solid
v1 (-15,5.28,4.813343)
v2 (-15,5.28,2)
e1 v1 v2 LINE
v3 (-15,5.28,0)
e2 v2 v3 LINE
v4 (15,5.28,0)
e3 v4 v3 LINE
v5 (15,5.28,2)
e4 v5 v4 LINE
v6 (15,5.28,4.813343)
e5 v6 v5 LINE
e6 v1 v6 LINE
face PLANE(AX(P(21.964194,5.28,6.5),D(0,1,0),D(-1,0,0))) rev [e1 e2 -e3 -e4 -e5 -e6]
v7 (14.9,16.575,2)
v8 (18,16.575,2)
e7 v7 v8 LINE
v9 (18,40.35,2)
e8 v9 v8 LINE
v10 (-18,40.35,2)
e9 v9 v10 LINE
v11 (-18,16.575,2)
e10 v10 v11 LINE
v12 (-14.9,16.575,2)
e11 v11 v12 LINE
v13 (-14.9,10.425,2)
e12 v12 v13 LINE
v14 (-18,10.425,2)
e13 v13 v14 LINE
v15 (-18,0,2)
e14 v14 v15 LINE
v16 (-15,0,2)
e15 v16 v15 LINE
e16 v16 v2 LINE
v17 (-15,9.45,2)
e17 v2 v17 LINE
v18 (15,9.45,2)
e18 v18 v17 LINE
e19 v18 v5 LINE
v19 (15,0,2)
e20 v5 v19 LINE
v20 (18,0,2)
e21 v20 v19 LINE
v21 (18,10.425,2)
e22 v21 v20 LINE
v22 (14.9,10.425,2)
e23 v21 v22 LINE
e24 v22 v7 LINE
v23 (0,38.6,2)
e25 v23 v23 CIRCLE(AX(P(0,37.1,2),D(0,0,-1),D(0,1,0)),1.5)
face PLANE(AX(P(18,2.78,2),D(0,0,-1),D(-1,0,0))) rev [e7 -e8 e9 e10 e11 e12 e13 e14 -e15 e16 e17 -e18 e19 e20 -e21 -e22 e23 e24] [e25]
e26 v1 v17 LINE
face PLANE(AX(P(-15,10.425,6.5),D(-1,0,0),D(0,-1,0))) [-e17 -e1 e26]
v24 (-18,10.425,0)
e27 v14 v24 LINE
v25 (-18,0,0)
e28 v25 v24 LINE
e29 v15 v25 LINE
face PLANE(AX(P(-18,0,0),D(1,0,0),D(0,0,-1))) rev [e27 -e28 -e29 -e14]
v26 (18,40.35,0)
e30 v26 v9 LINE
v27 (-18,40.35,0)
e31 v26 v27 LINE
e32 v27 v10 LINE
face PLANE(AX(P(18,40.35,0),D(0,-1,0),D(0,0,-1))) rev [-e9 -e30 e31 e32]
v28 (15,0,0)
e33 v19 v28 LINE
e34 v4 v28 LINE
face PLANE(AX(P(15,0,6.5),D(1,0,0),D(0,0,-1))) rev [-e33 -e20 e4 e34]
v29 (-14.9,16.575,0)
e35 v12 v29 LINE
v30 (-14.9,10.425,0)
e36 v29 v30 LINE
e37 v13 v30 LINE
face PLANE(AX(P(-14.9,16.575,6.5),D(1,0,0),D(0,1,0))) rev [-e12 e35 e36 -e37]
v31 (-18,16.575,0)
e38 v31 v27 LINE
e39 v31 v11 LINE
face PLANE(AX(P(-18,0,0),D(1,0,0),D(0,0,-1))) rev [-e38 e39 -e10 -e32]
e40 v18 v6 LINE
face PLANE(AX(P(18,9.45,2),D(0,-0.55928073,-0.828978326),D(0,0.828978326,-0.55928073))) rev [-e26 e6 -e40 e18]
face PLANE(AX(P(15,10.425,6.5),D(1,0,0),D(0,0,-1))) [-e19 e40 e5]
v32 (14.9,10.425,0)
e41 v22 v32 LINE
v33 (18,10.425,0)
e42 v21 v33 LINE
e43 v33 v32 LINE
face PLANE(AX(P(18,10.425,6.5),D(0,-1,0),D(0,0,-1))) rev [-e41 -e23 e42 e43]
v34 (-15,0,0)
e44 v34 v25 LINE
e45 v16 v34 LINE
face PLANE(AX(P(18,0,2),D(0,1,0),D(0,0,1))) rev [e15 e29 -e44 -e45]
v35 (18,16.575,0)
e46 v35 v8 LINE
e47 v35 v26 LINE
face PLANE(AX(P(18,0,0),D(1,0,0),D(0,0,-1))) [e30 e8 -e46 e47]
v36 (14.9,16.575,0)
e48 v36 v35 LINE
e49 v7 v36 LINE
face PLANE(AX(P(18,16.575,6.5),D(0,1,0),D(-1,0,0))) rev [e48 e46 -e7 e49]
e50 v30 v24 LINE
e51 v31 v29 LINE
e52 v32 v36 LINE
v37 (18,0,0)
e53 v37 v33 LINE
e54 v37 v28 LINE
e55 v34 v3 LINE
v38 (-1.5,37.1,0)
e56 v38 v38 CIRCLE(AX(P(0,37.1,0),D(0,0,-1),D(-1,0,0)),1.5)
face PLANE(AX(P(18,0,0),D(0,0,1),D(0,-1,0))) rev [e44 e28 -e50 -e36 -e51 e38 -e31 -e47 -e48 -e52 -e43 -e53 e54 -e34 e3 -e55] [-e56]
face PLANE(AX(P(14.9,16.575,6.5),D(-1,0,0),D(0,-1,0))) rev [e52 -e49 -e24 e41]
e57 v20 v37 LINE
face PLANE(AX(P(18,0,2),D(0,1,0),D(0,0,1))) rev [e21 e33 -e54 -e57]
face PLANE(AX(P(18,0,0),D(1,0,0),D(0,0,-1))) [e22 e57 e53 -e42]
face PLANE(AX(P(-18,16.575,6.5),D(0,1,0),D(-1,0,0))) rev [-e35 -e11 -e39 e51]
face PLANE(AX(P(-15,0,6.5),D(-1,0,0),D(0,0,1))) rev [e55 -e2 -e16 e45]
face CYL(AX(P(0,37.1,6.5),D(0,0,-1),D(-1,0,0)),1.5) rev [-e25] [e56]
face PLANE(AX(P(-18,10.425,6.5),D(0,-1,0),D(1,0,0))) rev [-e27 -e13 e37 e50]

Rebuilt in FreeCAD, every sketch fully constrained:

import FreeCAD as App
import Part
import Sketcher
from FreeCAD import Vector
Q = App.Units.Quantity

doc = App.newDocument("Part")
body = doc.addObject("PartDesign::Body", "Body")

# Sketch on YZ plane
sketch1 = body.newObject("Sketcher::SketchObject", "Sketch")
sketch1.AttachmentSupport = (doc.getObject("YZ_Plane"), [""])
sketch1.MapMode = "FlatFace"
sketch1.addGeometry([
    Part.LineSegment(Vector(0, 0, 0), Vector(40.35, 0, 0)),  # 0
    Part.LineSegment(Vector(40.35, 0, 0), Vector(40.35, 2, 0)),  # 1
    Part.LineSegment(Vector(40.35, 2, 0), Vector(9.45, 2, 0)),  # 2
    Part.LineSegment(Vector(9.45, 2, 0), Vector(2.78, 6.5, 0)),  # 3
    Part.LineSegment(Vector(2.78, 6.5, 0), Vector(2.78, 2, 0)),  # 4
    Part.LineSegment(Vector(2.78, 2, 0), Vector(0, 2, 0)),  # 5
    Part.LineSegment(Vector(0, 2, 0), Vector(0, 0, 0)),  # 6
], False)
sketch1.addConstraint([
    Sketcher.Constraint("Coincident", 0, 2, 1, 1),
    Sketcher.Constraint("Coincident", 1, 2, 2, 1),
    Sketcher.Constraint("Coincident", 2, 2, 3, 1),
    Sketcher.Constraint("Coincident", 3, 2, 4, 1),
    Sketcher.Constraint("Coincident", 4, 2, 5, 1),
    Sketcher.Constraint("Coincident", 5, 2, 6, 1),
    Sketcher.Constraint("Coincident", 6, 2, 0, 1),
    Sketcher.Constraint("Horizontal", 0),
    Sketcher.Constraint("Vertical", 1),
    Sketcher.Constraint("Horizontal", 2),
    Sketcher.Constraint("Vertical", 4),
    Sketcher.Constraint("Horizontal", 5),
    Sketcher.Constraint("Vertical", 6),
    Sketcher.Constraint("Coincident", 6, 2, -1, 1),
    Sketcher.Constraint("Horizontal", 2, 2, 4, 2),
    Sketcher.Constraint("DistanceY", 1, 1, 1, 2, Q("2 mm")),
    Sketcher.Constraint("DistanceX", 2, 2, 2, 1, Q("30.9 mm")),
    Sketcher.Constraint("DistanceY", 4, 2, 4, 1, Q("4.5 mm")),
    Sketcher.Constraint("DistanceX", 0, 1, 0, 2, Q("40.35 mm")),
    Sketcher.Constraint("DistanceX", 5, 2, 5, 1, Q("2.78 mm")),
])
pad1 = body.newObject("PartDesign::Pad", "Pad")
pad1.Profile = sketch1
pad1.Length = 36
pad1.Midplane = True

# Sketch on XY plane
sketch2 = body.newObject("Sketcher::SketchObject", "Sketch001")
sketch2.AttachmentSupport = (doc.getObject("XY_Plane"), [""])
sketch2.MapMode = "FlatFace"
sketch2.addGeometry([
    Part.Circle(Vector(0, 37.1, 0), Vector(0, 0, 1), 1.5),  # 0
    Part.LineSegment(Vector(15, 2.78, 0), Vector(15, 0, 0)),  # 1
    Part.LineSegment(Vector(15, 0, 0), Vector(-15, 0, 0)),  # 2
    Part.LineSegment(Vector(-15, 0, 0), Vector(-15, 2.78, 0)),  # 3
    Part.LineSegment(Vector(-15, 2.78, 0), Vector(15, 2.78, 0)),  # 4
], False)
sketch2.addConstraint([
    Sketcher.Constraint("Coincident", 1, 2, 2, 1),
    Sketcher.Constraint("Coincident", 2, 2, 3, 1),
    Sketcher.Constraint("Coincident", 3, 2, 4, 1),
    Sketcher.Constraint("Coincident", 4, 2, 1, 1),
    Sketcher.Constraint("Vertical", 1),
    Sketcher.Constraint("Horizontal", 2),
    Sketcher.Constraint("Vertical", 3),
    Sketcher.Constraint("Horizontal", 4),
    Sketcher.Constraint("Symmetric", 1, 2, 2, 2, -1, 1),
    Sketcher.Constraint("PointOnObject", 0, 3, -2),
    Sketcher.Constraint("Diameter", 0, Q("3 mm")),
    Sketcher.Constraint("DistanceX", 2, 2, 2, 1, Q("30 mm")),
    Sketcher.Constraint("DistanceY", 1, 2, 1, 1, Q("2.78 mm")),
    Sketcher.Constraint("DistanceY", -1, 1, 0, 3, Q("37.1 mm")),
])
pocket1 = body.newObject("PartDesign::Pocket", "Pocket")
pocket1.Profile = sketch2
pocket1.Type = "ThroughAll"
pocket1.Reversed = True

# Sketch on XY plane
sketch3 = body.newObject("Sketcher::SketchObject", "Sketch002")
sketch3.AttachmentSupport = (doc.getObject("XY_Plane"), [""])
sketch3.MapMode = "FlatFace"
sketch3.addGeometry([
    Part.LineSegment(Vector(18, 16.575, 0), Vector(18, 10.425, 0)),  # 0
    Part.LineSegment(Vector(18, 10.425, 0), Vector(14.9, 10.425, 0)),  # 1
    Part.LineSegment(Vector(14.9, 10.425, 0), Vector(14.9, 16.575, 0)),  # 2
    Part.LineSegment(Vector(14.9, 16.575, 0), Vector(18, 16.575, 0)),  # 3
    Part.LineSegment(Vector(-14.9, 16.575, 0), Vector(-14.9, 10.425, 0)),  # 4
    Part.LineSegment(Vector(-14.9, 10.425, 0), Vector(-18, 10.425, 0)),  # 5
    Part.LineSegment(Vector(-18, 10.425, 0), Vector(-18, 16.575, 0)),  # 6
    Part.LineSegment(Vector(-18, 16.575, 0), Vector(-14.9, 16.575, 0)),  # 7
], False)
sketch3.addConstraint([
    Sketcher.Constraint("Coincident", 0, 2, 1, 1),
    Sketcher.Constraint("Coincident", 1, 2, 2, 1),
    Sketcher.Constraint("Coincident", 2, 2, 3, 1),
    Sketcher.Constraint("Coincident", 3, 2, 0, 1),
    Sketcher.Constraint("Coincident", 4, 2, 5, 1),
    Sketcher.Constraint("Coincident", 5, 2, 6, 1),
    Sketcher.Constraint("Coincident", 6, 2, 7, 1),
    Sketcher.Constraint("Coincident", 7, 2, 4, 1),
    Sketcher.Constraint("Vertical", 0),
    Sketcher.Constraint("Horizontal", 1),
    Sketcher.Constraint("Vertical", 2),
    Sketcher.Constraint("Horizontal", 3),
    Sketcher.Constraint("Vertical", 4),
    Sketcher.Constraint("Horizontal", 5),
    Sketcher.Constraint("Vertical", 6),
    Sketcher.Constraint("Horizontal", 7),
    Sketcher.Constraint("Symmetric", 1, 2, 4, 2, -2),
    Sketcher.Constraint("Symmetric", 3, 2, 6, 2, -2),
    Sketcher.Constraint("DistanceX", 1, 2, 1, 1, Q("3.1 mm")),
    Sketcher.Constraint("DistanceX", -1, 1, 0, 2, Q("18 mm")),
    Sketcher.Constraint("DistanceY", 0, 2, 0, 1, Q("6.15 mm")),
    Sketcher.Constraint("DistanceY", -1, 1, 0, 2, Q("10.425 mm")),
])
pocket2 = body.newObject("PartDesign::Pocket", "Pocket001")
pocket2.Profile = sketch3
pocket2.Type = "ThroughAll"
pocket2.Reversed = True

# Sketch on XY plane
sketch4 = body.newObject("Sketcher::SketchObject", "Sketch003")
sketch4.AttachmentSupport = (doc.getObject("XY_Plane"), [""])
sketch4.MapMode = "FlatFace"
sketch4.AttachmentOffset = App.Placement(Vector(0, 0, 2), App.Rotation())
sketch4.addGeometry([
    Part.LineSegment(Vector(-18, 10.425, 0), Vector(-18, 2.78, 0)),  # 0
    Part.LineSegment(Vector(-18, 2.78, 0), Vector(-15, 2.78, 0)),  # 1
    Part.LineSegment(Vector(-15, 2.78, 0), Vector(-15, 10.425, 0)),  # 2
    Part.LineSegment(Vector(-15, 10.425, 0), Vector(-18, 10.425, 0)),  # 3
    Part.LineSegment(Vector(15, 10.425, 0), Vector(15, 2.78, 0)),  # 4
    Part.LineSegment(Vector(15, 2.78, 0), Vector(18, 2.78, 0)),  # 5
    Part.LineSegment(Vector(18, 2.78, 0), Vector(18, 10.425, 0)),  # 6
    Part.LineSegment(Vector(18, 10.425, 0), Vector(15, 10.425, 0)),  # 7
], False)
sketch4.addConstraint([
    Sketcher.Constraint("Coincident", 0, 2, 1, 1),
    Sketcher.Constraint("Coincident", 1, 2, 2, 1),
    Sketcher.Constraint("Coincident", 2, 2, 3, 1),
    Sketcher.Constraint("Coincident", 3, 2, 0, 1),
    Sketcher.Constraint("Coincident", 4, 2, 5, 1),
    Sketcher.Constraint("Coincident", 5, 2, 6, 1),
    Sketcher.Constraint("Coincident", 6, 2, 7, 1),
    Sketcher.Constraint("Coincident", 7, 2, 4, 1),
    Sketcher.Constraint("Vertical", 0),
    Sketcher.Constraint("Horizontal", 1),
    Sketcher.Constraint("Vertical", 2),
    Sketcher.Constraint("Horizontal", 3),
    Sketcher.Constraint("Vertical", 4),
    Sketcher.Constraint("Horizontal", 5),
    Sketcher.Constraint("Vertical", 6),
    Sketcher.Constraint("Horizontal", 7),
    Sketcher.Constraint("Symmetric", 1, 2, 4, 2, -2),
    Sketcher.Constraint("Symmetric", 3, 2, 6, 2, -2),
    Sketcher.Constraint("DistanceX", 1, 1, 1, 2, Q("3 mm")),
    Sketcher.Constraint("DistanceX", 0, 2, -1, 1, Q("18 mm")),
    Sketcher.Constraint("DistanceY", 0, 2, 0, 1, Q("7.645 mm")),
    Sketcher.Constraint("DistanceY", -1, 1, 0, 2, Q("2.78 mm")),
])
pocket3 = body.newObject("PartDesign::Pocket", "Pocket002")
pocket3.Profile = sketch4
pocket3.Type = "ThroughAll"
pocket3.Reversed = True

# Sketch on YZ plane
sketch5 = body.newObject("Sketcher::SketchObject", "Sketch004")
sketch5.AttachmentSupport = (doc.getObject("YZ_Plane"), [""])
sketch5.MapMode = "FlatFace"
sketch5.AttachmentOffset = App.Placement(Vector(0, 0, -15), App.Rotation())
sketch5.addGeometry([
    Part.LineSegment(Vector(5.28, 0, 0), Vector(2.78, 0, 0)),
    Part.LineSegment(Vector(2.78, 0, 0), Vector(2.78, 6.5, 0)),
    Part.LineSegment(Vector(2.78, 6.5, 0), Vector(5.28, 6.5, 0)),
    Part.LineSegment(Vector(5.28, 6.5, 0), Vector(5.28, 0, 0)),
], False)
sketch5.addConstraint([
    Sketcher.Constraint("Coincident", 0, 2, 1, 1),
    Sketcher.Constraint("Coincident", 1, 2, 2, 1),
    Sketcher.Constraint("Coincident", 2, 2, 3, 1),
    Sketcher.Constraint("Coincident", 3, 2, 0, 1),
    Sketcher.Constraint("Horizontal", 0),
    Sketcher.Constraint("Vertical", 1),
    Sketcher.Constraint("Horizontal", 2),
    Sketcher.Constraint("Vertical", 3),
    Sketcher.Constraint("PointOnObject", 0, 2, -1),
    Sketcher.Constraint("DistanceX", 0, 2, 0, 1, Q("2.5 mm")),
    Sketcher.Constraint("DistanceY", 1, 1, 1, 2, Q("6.5 mm")),
    Sketcher.Constraint("DistanceX", -1, 1, 0, 2, Q("2.78 mm")),
])
pocket4 = body.newObject("PartDesign::Pocket", "Pocket003")
pocket4.Profile = sketch5
pocket4.Length = 30
pocket4.Reversed = True

doc.recompute()
